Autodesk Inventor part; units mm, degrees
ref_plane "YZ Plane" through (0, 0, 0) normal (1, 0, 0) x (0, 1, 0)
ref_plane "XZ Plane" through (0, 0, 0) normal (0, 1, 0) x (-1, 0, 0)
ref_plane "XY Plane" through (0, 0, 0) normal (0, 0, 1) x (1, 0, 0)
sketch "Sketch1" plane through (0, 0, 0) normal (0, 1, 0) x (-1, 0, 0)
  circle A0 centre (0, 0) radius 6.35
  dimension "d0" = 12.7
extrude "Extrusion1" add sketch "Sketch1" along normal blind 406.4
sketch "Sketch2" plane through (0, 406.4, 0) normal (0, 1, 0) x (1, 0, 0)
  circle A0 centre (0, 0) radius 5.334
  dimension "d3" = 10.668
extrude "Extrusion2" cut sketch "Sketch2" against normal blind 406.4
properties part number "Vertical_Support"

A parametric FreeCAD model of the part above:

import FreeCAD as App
import Part
import Sketcher
from FreeCAD import Vector
Q = App.Units.Quantity

doc = App.newDocument("Part")
body = doc.addObject("PartDesign::Body", "Body")

# Sketch on XZ plane
sketch1 = doc.addObject("Sketcher::SketchObject", "Sketch")
body.addObject(sketch1)
sketch1.AttachmentSupport = (doc.XZ_Plane, [""])
sketch1.MapMode = "FlatFace"
sketch1.addGeometry(Part.Circle(Vector(0, 0, 0), Vector(0, 0, 1), 6), False)
sketch1.addConstraint([
    Sketcher.Constraint("Coincident", 0, 3, -1, 1),
    Sketcher.Constraint("Diameter", 0, Q("0.5 in")),
])
pad1 = doc.addObject("PartDesign::Pad", "Pad")
body.addObject(pad1)
pad1.Profile = sketch1
pad1.Length = Q("16 in")
pad1.Reversed = True

# Sketch on XZ plane
sketch2 = doc.addObject("Sketcher::SketchObject", "Sketch001")
body.addObject(sketch2)
sketch2.AttachmentSupport = (doc.XZ_Plane, [""])
sketch2.MapMode = "FlatFace"
sketch2.AttachmentOffset = App.Placement(Vector(0, 0, -16 * 25.4), App.Rotation())
sketch2.addGeometry(Part.Circle(Vector(0, 0, 0), Vector(0, 0, 1), 5), False)
sketch2.addConstraint([
    Sketcher.Constraint("Coincident", 0, 3, -1, 1),
    Sketcher.Constraint("Diameter", 0, Q("0.42 in")),
])
pocket1 = doc.addObject("PartDesign::Pocket", "Pocket")
body.addObject(pocket1)
pocket1.Profile = sketch2
pocket1.Length = Q("16 in")
pocket1.Reversed = True

doc.recompute()
